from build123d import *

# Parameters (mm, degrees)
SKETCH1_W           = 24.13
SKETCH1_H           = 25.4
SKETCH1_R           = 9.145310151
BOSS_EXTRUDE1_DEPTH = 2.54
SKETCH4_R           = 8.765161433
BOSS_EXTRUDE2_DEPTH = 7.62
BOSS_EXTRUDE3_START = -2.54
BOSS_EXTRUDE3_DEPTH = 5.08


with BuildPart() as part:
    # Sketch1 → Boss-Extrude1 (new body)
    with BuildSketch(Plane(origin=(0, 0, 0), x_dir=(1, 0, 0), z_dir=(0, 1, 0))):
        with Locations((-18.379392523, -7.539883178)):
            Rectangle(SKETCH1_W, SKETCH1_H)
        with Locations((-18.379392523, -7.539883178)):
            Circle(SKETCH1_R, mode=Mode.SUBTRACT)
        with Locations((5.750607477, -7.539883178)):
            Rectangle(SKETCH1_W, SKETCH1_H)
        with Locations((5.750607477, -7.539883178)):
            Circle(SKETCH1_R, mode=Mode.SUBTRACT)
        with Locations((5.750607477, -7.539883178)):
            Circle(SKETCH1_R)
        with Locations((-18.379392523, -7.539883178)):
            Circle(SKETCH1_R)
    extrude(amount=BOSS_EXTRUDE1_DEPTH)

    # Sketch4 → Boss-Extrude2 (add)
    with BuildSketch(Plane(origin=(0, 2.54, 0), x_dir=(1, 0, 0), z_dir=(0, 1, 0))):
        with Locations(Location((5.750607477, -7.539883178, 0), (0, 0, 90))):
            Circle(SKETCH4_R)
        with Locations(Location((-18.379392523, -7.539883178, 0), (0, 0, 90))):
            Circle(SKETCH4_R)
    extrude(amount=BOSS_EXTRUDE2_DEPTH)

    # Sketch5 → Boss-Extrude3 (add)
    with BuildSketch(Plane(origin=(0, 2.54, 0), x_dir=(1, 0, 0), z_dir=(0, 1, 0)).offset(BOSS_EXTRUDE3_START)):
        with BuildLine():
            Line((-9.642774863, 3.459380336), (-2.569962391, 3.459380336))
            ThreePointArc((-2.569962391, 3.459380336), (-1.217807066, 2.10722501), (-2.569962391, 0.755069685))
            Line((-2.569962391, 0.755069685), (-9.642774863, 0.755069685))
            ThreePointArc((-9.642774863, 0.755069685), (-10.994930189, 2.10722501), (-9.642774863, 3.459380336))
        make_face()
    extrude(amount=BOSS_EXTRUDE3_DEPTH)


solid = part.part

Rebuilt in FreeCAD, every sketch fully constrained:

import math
import FreeCAD as App
import Part
import Sketcher
Q = App.Units.Quantity

doc = App.newDocument("Part")
body = doc.addObject("PartDesign::Body", "Body")

sketch1 = body.newObject("Sketcher::SketchObject", "Sketch")
sketch1.AttachmentSupport = (doc.getObject("XZ_Plane"), [""])
sketch1.MapMode = "FlatFace"
sketch1.addGeometry(Part.LineSegment(App.Vector(-30, -5, 0), App.Vector(-30, 20, 0)), False)
sketch1.addGeometry(Part.LineSegment(App.Vector(-30, 20, 0), App.Vector(18, 20, 0)), False)
sketch1.addGeometry(Part.LineSegment(App.Vector(18, 20, 0), App.Vector(18, -5, 0)), False)
sketch1.addGeometry(Part.LineSegment(App.Vector(18, -5, 0), App.Vector(-30, -5, 0)), False)
sketch1.addConstraint(Sketcher.Constraint("Coincident", 0, 2, 1, 1))
sketch1.addConstraint(Sketcher.Constraint("Coincident", 1, 2, 2, 1))
sketch1.addConstraint(Sketcher.Constraint("Coincident", 2, 2, 3, 1))
sketch1.addConstraint(Sketcher.Constraint("Coincident", 3, 2, 0, 1))
sketch1.addConstraint(Sketcher.Constraint("Vertical", 0))
sketch1.addConstraint(Sketcher.Constraint("Horizontal", 1))
sketch1.addConstraint(Sketcher.Constraint("Vertical", 2))
sketch1.addConstraint(Sketcher.Constraint("Horizontal", 3))
sketch1.addConstraint(Sketcher.Constraint("DistanceY", 0, 1, 0, 2, Q("1 in")))
sketch1.addConstraint(Sketcher.Constraint("DistanceX", 1, 1, 1, 2, Q("1.9 in")))
sketch1.addConstraint(Sketcher.Constraint("DistanceX", 0, 2, -1, 1, Q("30.444393 mm")))
sketch1.addConstraint(Sketcher.Constraint("DistanceY", -1, 1, 0, 2, Q("20.239883 mm")))
pad1 = body.newObject("PartDesign::Pad", "Pad")
pad1.Profile = sketch1
pad1.Length = Q("0.1 in")
pad1.Reversed = True

sketch2 = body.newObject("Sketcher::SketchObject", "Sketch001")
sketch2.AttachmentSupport = (doc.getObject("XZ_Plane"), [""])
sketch2.MapMode = "FlatFace"
sketch2.AttachmentOffset = App.Placement(App.Vector(0, 0, -0.1 * 25.4), App.Rotation())
sketch2.addGeometry(Part.Circle(App.Vector(6, 8, 0), App.Vector(0, 0, 1), 9), False)
sketch2.addGeometry(Part.Circle(App.Vector(-18, 8, 0), App.Vector(0, 0, 1), 9), False)
sketch2.addConstraint(Sketcher.Constraint("Equal", 0, 1))
sketch2.addConstraint(Sketcher.Constraint("Horizontal", 0, 3, 1, 3))
sketch2.addConstraint(Sketcher.Constraint("DistanceX", 1, 3, 0, 3, Q("0.95 in")))
sketch2.addConstraint(Sketcher.Constraint("Diameter", 0, Q("17.530323 mm")))
sketch2.addConstraint(Sketcher.Constraint("DistanceX", -1, 1, 0, 3, Q("5.750607 mm")))
sketch2.addConstraint(Sketcher.Constraint("DistanceY", -1, 1, 0, 3, Q("7.539883 mm")))
pad2 = body.newObject("PartDesign::Pad", "Pad001")
pad2.Profile = sketch2
pad2.Length = Q("0.3 in")
pad2.Reversed = True

sketch3 = body.newObject("Sketcher::SketchObject", "Sketch002")
sketch3.AttachmentSupport = (doc.getObject("XZ_Plane"), [""])
sketch3.MapMode = "FlatFace"
sketch3.addGeometry(Part.LineSegment(App.Vector(-2.6, -3.5, 0), App.Vector(-9.6, -3.5, 0)), False)
sketch3.addGeometry(Part.ArcOfCircle(Part.Circle(App.Vector(-9.6, -2.1, 0), App.Vector(0, 0, 1), 1.4), math.radians(90), math.radians(270)), False)
sketch3.addGeometry(Part.LineSegment(App.Vector(-9.6, -0.8, 0), App.Vector(-2.6, -0.8, 0)), False)
sketch3.addGeometry(Part.ArcOfCircle(Part.Circle(App.Vector(-2.6, -2.1, 0), App.Vector(0, 0, 1), 1.4), math.radians(-90), math.radians(90)), False)
sketch3.addConstraint(Sketcher.Constraint("Tangent", 0, 2, 1, 2))
sketch3.addConstraint(Sketcher.Constraint("Tangent", 1, 1, 2, 1))
sketch3.addConstraint(Sketcher.Constraint("Tangent", 2, 2, 3, 2))
sketch3.addConstraint(Sketcher.Constraint("Tangent", 3, 1, 0, 1))
sketch3.addConstraint(Sketcher.Constraint("Horizontal", 0))
sketch3.addConstraint(Sketcher.Constraint("Horizontal", 2))
sketch3.addConstraint(Sketcher.Constraint("Radius", 1, Q("1.352155 mm")))
sketch3.addConstraint(Sketcher.Constraint("DistanceX", 0, 2, 0, 1, Q("7.072812 mm")))
sketch3.addConstraint(Sketcher.Constraint("DistanceY", 0, 2, -1, 1, Q("3.45938 mm")))
sketch3.addConstraint(Sketcher.Constraint("DistanceX", 1, 3, -1, 1, Q("9.642775 mm")))
pad3 = body.newObject("PartDesign::Pad", "Pad002")
pad3.Profile = sketch3
pad3.Length = Q("0.2 in")
pad3.Reversed = True

doc.recompute()
